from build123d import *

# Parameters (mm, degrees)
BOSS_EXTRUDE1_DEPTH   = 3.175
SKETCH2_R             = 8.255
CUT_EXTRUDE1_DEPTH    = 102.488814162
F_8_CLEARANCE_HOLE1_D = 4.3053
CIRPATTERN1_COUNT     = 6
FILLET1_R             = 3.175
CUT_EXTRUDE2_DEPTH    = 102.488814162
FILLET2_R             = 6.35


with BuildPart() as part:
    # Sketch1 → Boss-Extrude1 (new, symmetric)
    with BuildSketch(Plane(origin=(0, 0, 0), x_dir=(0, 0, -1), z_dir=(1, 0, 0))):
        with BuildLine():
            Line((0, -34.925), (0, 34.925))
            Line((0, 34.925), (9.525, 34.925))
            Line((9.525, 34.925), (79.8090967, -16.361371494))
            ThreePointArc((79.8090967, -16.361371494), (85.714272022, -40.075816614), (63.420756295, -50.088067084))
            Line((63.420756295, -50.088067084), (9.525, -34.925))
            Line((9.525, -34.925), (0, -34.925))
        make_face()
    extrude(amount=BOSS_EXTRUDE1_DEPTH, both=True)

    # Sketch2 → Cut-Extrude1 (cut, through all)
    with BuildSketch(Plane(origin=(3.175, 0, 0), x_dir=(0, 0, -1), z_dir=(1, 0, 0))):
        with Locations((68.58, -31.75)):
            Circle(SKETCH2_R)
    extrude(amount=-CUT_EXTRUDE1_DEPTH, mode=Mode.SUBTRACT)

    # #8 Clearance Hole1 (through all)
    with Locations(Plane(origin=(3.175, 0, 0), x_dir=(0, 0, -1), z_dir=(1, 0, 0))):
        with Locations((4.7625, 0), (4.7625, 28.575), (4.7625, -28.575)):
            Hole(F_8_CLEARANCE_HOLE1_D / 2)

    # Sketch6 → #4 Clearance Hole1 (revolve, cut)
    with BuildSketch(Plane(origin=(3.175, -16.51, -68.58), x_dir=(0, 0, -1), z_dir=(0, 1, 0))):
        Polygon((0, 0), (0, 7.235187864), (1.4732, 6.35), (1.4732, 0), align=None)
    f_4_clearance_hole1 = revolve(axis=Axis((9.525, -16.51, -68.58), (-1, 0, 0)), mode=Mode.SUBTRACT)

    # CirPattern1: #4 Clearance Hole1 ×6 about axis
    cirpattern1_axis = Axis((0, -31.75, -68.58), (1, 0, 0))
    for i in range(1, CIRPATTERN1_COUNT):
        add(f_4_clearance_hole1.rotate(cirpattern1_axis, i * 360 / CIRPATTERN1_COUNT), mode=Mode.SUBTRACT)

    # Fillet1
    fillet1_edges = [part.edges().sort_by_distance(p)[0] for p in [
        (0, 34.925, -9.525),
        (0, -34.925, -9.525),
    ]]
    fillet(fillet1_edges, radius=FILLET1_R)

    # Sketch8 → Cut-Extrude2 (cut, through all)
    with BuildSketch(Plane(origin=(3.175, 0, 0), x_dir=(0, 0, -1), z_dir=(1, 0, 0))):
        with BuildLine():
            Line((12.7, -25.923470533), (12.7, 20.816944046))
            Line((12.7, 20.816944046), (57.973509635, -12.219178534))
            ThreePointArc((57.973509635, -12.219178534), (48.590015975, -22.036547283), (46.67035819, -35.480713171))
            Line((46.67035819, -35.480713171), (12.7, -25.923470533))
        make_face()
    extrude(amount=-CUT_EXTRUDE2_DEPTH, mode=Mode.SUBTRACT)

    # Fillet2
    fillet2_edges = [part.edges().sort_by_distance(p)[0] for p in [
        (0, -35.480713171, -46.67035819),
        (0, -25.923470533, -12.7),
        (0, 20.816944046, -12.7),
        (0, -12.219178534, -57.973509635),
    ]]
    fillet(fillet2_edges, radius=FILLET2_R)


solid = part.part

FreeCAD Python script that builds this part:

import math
import FreeCAD as App
import Part
import Sketcher
Q = App.Units.Quantity


def edges_at(feature, points):
    """Names of the edges that pass closest to the given points."""
    edges = feature.Shape.Edges
    near = lambda p: min(range(len(edges)), key=lambda i: edges[i].distToShape(Part.Vertex(*p))[0])
    return sorted({f"Edge{near(p) + 1}" for p in points})

doc = App.newDocument("Part")
body = doc.addObject("PartDesign::Body", "Body")

# Sketch on YZ plane
sketch1 = doc.addObject("Sketcher::SketchObject", "Sketch")
body.addObject(sketch1)
sketch1.AttachmentSupport = (doc.YZ_Plane, [""])
sketch1.MapMode = "FlatFace"
sketch1.addGeometry([
    Part.LineSegment(App.Vector(35, 0, 0), App.Vector(-35, 0, 0)),  # 0
    Part.LineSegment(App.Vector(-35, 0, 0), App.Vector(-35, -10, 0)),  # 1
    Part.LineSegment(App.Vector(-35, -10, 0), App.Vector(-50, -63, 0)),  # 2
    Part.ArcOfCircle(Part.Circle(App.Vector(-32, -69, 0), App.Vector(0, 0, 1), 19), math.radians(164), math.radians(324)),  # 3
    Part.LineSegment(App.Vector(-16, -80, 0), App.Vector(35, -10, 0)),  # 4
    Part.LineSegment(App.Vector(35, -10, 0), App.Vector(35, 0, 0)),  # 5
], False)
sketch1.addConstraint([
    Sketcher.Constraint("Coincident", 0, 2, 1, 1),
    Sketcher.Constraint("Coincident", 1, 2, 2, 1),
    Sketcher.Constraint("Tangent", 2, 2, 3, 1),
    Sketcher.Constraint("Tangent", 3, 2, 4, 1),
    Sketcher.Constraint("Coincident", 4, 2, 5, 1),
    Sketcher.Constraint("Coincident", 5, 2, 0, 1),
    Sketcher.Constraint("Horizontal", 0),
    Sketcher.Constraint("Vertical", 1),
    Sketcher.Constraint("Vertical", 5),
    Sketcher.Constraint("Symmetric", 0, 2, 5, 2, -1, 1),
    Sketcher.Constraint("Horizontal", 1, 2, 4, 2),
    Sketcher.Constraint("Radius", 3, Q("0.75 in")),
    Sketcher.Constraint("DistanceX", 0, 2, 0, 1, Q("2.75 in")),
    Sketcher.Constraint("DistanceY", 3, 3, -1, 1, Q("2.7 in")),
    Sketcher.Constraint("DistanceY", 1, 2, 1, 1, Q("0.375 in")),
    Sketcher.Constraint("DistanceX", 3, 3, -1, 1, Q("1.25 in")),
])
pad1 = doc.addObject("PartDesign::Pad", "Pad")
body.addObject(pad1)
pad1.Profile = sketch1
pad1.Length = Q("0.25 in")
pad1.Midplane = True

# Sketch on YZ plane
sketch2 = doc.addObject("Sketcher::SketchObject", "Sketch001")
body.addObject(sketch2)
sketch2.AttachmentSupport = (doc.YZ_Plane, [""])
sketch2.MapMode = "FlatFace"
sketch2.AttachmentOffset = App.Placement(App.Vector(0, 0, 0.125 * 25.4), App.Rotation())
sketch2.addGeometry(Part.Circle(App.Vector(-32, -69, 0), App.Vector(0, 0, 1), 8), False)
sketch2.addConstraint([
    Sketcher.Constraint("Diameter", 0, Q("0.65 in")),
    Sketcher.Constraint("DistanceY", 0, 3, -1, 1, Q("2.7 in")),
    Sketcher.Constraint("DistanceX", 0, 3, -1, 1, Q("1.25 in")),
])
pocket1 = doc.addObject("PartDesign::Pocket", "Pocket")
body.addObject(pocket1)
pocket1.Profile = sketch2
pocket1.Type = "ThroughAll"

# Sketch on YZ plane
sketch3 = doc.addObject("Sketcher::SketchObject", "Sketch002")
body.addObject(sketch3)
sketch3.AttachmentSupport = (doc.YZ_Plane, [""])
sketch3.MapMode = "FlatFace"
sketch3.AttachmentOffset = App.Placement(App.Vector(0, 0, 0.125 * 25.4), App.Rotation())
sketch3.addGeometry([
    Part.Circle(App.Vector(0, -4.8, 0), App.Vector(0, 0, 1), 2.2),
    Part.Circle(App.Vector(28.6, -4.8, 0), App.Vector(0, 0, 1), 2.2),
    Part.Circle(App.Vector(-28.6, -4.8, 0), App.Vector(0, 0, 1), 2.2),
], False)
sketch3.addConstraint([
    Sketcher.Constraint("Equal", 0, 1),
    Sketcher.Constraint("Equal", 1, 2),
    Sketcher.Constraint("Symmetric", 1, 3, 2, 3, -2),
    Sketcher.Constraint("PointOnObject", 0, 3, -2),
    Sketcher.Constraint("Horizontal", 0, 3, 1, 3),
    Sketcher.Constraint("Diameter", 0, Q("0.1695 in")),
    Sketcher.Constraint("DistanceX", 2, 3, 1, 3, Q("2.25 in")),
    Sketcher.Constraint("DistanceY", 0, 3, -1, 1, Q("0.1875 in")),
])
doc.recompute()
hole = doc.addObject("PartDesign::Hole", "Hole")
body.addObject(hole)
hole.Profile = sketch3
hole.ThreadType = "None"
hole.Diameter = Q("0.1695 in")
hole.DepthType = "ThroughAll"

# Sketch on XZ plane
sketch4 = doc.addObject("Sketcher::SketchObject", "Sketch003")
body.addObject(sketch4)
sketch4.AttachmentSupport = (doc.XZ_Plane, [""])
sketch4.MapMode = "FlatFace"
sketch4.AttachmentOffset = App.Placement(App.Vector(0, 0, 0.65 * 25.4), App.Rotation())
sketch4.addGeometry([
    Part.LineSegment(App.Vector(-4.1, -68.6, 0), App.Vector(3.2, -68.6, 0)),
    Part.LineSegment(App.Vector(3.2, -68.6, 0), App.Vector(3.2, -70.1, 0)),
    Part.LineSegment(App.Vector(3.2, -70.1, 0), App.Vector(-3.2, -70.1, 0)),
    Part.LineSegment(App.Vector(-3.2, -70.1, 0), App.Vector(-4.1, -68.6, 0)),
], False)
sketch4.addGeometry(Part.LineSegment(App.Vector(3.2, -68.6, 0), App.Vector(-4.1, -68.6, 0)), True)  # axis
sketch4.addConstraint([
    Sketcher.Constraint("Coincident", 0, 2, 1, 1),
    Sketcher.Constraint("Coincident", 1, 2, 2, 1),
    Sketcher.Constraint("Coincident", 2, 2, 3, 1),
    Sketcher.Constraint("Coincident", 3, 2, 0, 1),
    Sketcher.Constraint("Horizontal", 0),
    Sketcher.Constraint("Vertical", 1),
    Sketcher.Constraint("Horizontal", 2),
    Sketcher.Constraint("Horizontal", 4),
    Sketcher.Constraint("Coincident", 4, 1, 0, 2),
    Sketcher.Constraint("Equal", 0, 4),
    Sketcher.Constraint("Angle", 3, Q("121 deg")),
    Sketcher.Constraint("DistanceX", 2, 2, 2, 1, Q("0.25 in")),
    Sketcher.Constraint("DistanceY", 0, 2, -1, 1, Q("2.7 in")),
    Sketcher.Constraint("DistanceY", 1, 2, 1, 1, Q("0.058 in")),
    Sketcher.Constraint("DistanceX", -1, 1, 0, 2, Q("0.125 in")),
])
groove = doc.addObject("PartDesign::Groove", "Groove")
body.addObject(groove)
groove.Profile = sketch4
groove.ReferenceAxis = (sketch4, ["Axis0"])
groove.Angle = 360
doc.recompute()

datumline = doc.addObject("PartDesign::Line", "DatumLine")
body.addObject(datumline)
datumline.Placement = App.Placement(App.Vector(0, -31.75, -68.58), App.Rotation(App.Vector(0, 0, 1), App.Vector(1, 0, 0)))
polarpattern = doc.addObject("PartDesign::PolarPattern", "PolarPattern")
body.addObject(polarpattern)
polarpattern.Originals = [groove]
polarpattern.Axis = (datumline, [""])
polarpattern.Angle = 360
polarpattern.Occurrences = 6
body.Tip = polarpattern
doc.recompute()

fillet = doc.addObject("PartDesign::Fillet", "Fillet")
body.addObject(fillet)
fillet.Base = (polarpattern, edges_at(polarpattern, [(0, 34.925, -9.525), (0, -34.925, -9.525)]))
fillet.Radius = Q("0.125 in")

# Sketch on YZ plane
sketch5 = doc.addObject("Sketcher::SketchObject", "Sketch004")
body.addObject(sketch5)
sketch5.AttachmentSupport = (doc.YZ_Plane, [""])
sketch5.MapMode = "FlatFace"
sketch5.AttachmentOffset = App.Placement(App.Vector(0, 0, 0.125 * 25.4), App.Rotation())
sketch5.addGeometry([
    Part.LineSegment(App.Vector(21, -13, 0), App.Vector(-26, -13, 0)),
    Part.LineSegment(App.Vector(-26, -13, 0), App.Vector(-35, -47, 0)),
    Part.ArcOfCircle(Part.Circle(App.Vector(-32, -69, 0), App.Vector(0, 0, 1), 22), math.radians(29), math.radians(100)),
    Part.LineSegment(App.Vector(-12, -58, 0), App.Vector(21, -13, 0)),
], False)
sketch5.addConstraint([
    Sketcher.Constraint("Coincident", 0, 2, 1, 1),
    Sketcher.Constraint("Coincident", 1, 2, 2, 2),
    Sketcher.Constraint("Coincident", 2, 1, 3, 1),
    Sketcher.Constraint("Coincident", 3, 2, 0, 1),
    Sketcher.Constraint("Horizontal", 0),
    Sketcher.Constraint("Radius", 2, Q("0.875 in")),
    Sketcher.Constraint("DistanceY", 2, 3, -1, 1, Q("2.7 in")),
    Sketcher.Constraint("DistanceY", 0, 2, -1, 1, Q("0.5 in")),
    Sketcher.Constraint("DistanceX", 2, 3, -1, 1, Q("1.25 in")),
    Sketcher.Constraint("Distance", 1, Q("35.289179 mm")),
    Sketcher.Constraint("DistanceX", 0, 2, 0, 1, Q("46.740415 mm")),
    Sketcher.Constraint("DistanceX", 0, 2, -1, 1, Q("25.923471 mm")),
    Sketcher.Constraint("DistanceX", 2, 1, -1, 1, Q("12.219179 mm")),
])
pocket2 = doc.addObject("PartDesign::Pocket", "Pocket001")
body.addObject(pocket2)
pocket2.Profile = sketch5
pocket2.Type = "ThroughAll"
doc.recompute()

fillet2 = doc.addObject("PartDesign::Fillet", "Fillet001")
body.addObject(fillet2)
fillet2.Base = (pocket2, edges_at(pocket2, [
    (0, -35.481, -46.67),
    (0, -25.923, -12.7),
    (0, 20.817, -12.7),
    (0, -12.219, -57.974),
]))
fillet2.Radius = Q("0.25 in")

doc.recompute()
